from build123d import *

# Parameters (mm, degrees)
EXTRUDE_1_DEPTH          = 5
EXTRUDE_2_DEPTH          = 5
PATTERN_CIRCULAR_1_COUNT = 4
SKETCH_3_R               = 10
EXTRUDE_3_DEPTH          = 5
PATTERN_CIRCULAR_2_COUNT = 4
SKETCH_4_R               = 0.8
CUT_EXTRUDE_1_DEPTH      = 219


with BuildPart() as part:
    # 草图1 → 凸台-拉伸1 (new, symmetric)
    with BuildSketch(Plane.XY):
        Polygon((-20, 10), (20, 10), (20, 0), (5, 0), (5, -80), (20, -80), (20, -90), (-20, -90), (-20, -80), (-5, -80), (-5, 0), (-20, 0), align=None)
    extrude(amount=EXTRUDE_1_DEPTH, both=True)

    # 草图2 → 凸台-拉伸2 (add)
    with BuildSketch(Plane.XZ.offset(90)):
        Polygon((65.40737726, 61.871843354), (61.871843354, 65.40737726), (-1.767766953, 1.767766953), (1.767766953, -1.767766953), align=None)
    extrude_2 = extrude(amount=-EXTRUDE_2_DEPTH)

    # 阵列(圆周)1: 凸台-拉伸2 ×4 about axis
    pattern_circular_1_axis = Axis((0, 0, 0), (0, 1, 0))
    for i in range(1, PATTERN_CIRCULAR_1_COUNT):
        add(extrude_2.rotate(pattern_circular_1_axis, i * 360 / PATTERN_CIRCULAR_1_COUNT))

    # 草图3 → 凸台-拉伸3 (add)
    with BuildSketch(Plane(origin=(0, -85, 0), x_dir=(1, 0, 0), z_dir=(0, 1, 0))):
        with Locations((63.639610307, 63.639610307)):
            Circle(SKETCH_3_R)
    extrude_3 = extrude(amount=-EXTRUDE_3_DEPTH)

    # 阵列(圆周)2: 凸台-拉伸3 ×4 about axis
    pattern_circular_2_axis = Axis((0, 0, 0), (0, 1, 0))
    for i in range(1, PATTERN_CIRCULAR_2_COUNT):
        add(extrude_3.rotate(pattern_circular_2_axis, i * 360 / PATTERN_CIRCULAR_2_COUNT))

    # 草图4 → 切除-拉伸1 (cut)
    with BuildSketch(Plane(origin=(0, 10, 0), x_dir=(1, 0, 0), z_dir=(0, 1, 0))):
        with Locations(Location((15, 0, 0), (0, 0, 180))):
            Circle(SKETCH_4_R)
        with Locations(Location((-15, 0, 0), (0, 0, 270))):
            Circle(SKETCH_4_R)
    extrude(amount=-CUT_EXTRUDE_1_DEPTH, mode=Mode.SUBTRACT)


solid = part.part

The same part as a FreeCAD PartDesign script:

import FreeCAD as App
import Part
import Sketcher
Q = App.Units.Quantity


def add_polygon(sketch, points):
    """Adds a closed chain of lines whose ends are joined by coincident constraints."""
    first, n = sketch.GeometryCount, len(points)
    for a, b in zip(points, points[1:] + points[:1]):
        sketch.addGeometry(Part.LineSegment(App.Vector(*a, 0), App.Vector(*b, 0)), False)
    for i in range(n):
        sketch.addConstraint(Sketcher.Constraint("Coincident", first + i, 2, first + (i + 1) % n, 1))

doc = App.newDocument("Part")
body = doc.addObject("PartDesign::Body", "Body")

# Sketch on XY plane
sketch1 = body.newObject("Sketcher::SketchObject", "Sketch")
sketch1.AttachmentSupport = (doc.getObject("XY_Plane"), [""])
sketch1.MapMode = "FlatFace"
add_polygon(sketch1, [(20, 10), (-20, 10), (-20, 0), (-5, 0), (-5, -80), (-20, -80), (-20, -90), (20, -90), (20, -80), (5, -80), (5, 0), (20, 0)])  # lines 0-11
sketch1.addConstraint(Sketcher.Constraint("Horizontal", 0))
sketch1.addConstraint(Sketcher.Constraint("Vertical", 1))
sketch1.addConstraint(Sketcher.Constraint("Horizontal", 2))
sketch1.addConstraint(Sketcher.Constraint("Vertical", 3))
sketch1.addConstraint(Sketcher.Constraint("Horizontal", 4))
sketch1.addConstraint(Sketcher.Constraint("Vertical", 5))
sketch1.addConstraint(Sketcher.Constraint("Horizontal", 6))
sketch1.addConstraint(Sketcher.Constraint("Vertical", 7))
sketch1.addConstraint(Sketcher.Constraint("Horizontal", 8))
sketch1.addConstraint(Sketcher.Constraint("Vertical", 9))
sketch1.addConstraint(Sketcher.Constraint("Horizontal", 10))
sketch1.addConstraint(Sketcher.Constraint("Vertical", 11))
sketch1.addConstraint(Sketcher.Constraint("Symmetric", 2, 2, 9, 2, -1, 1))
sketch1.addConstraint(Sketcher.Constraint("Symmetric", 4, 2, 7, 2, -2))
sketch1.addConstraint(Sketcher.Constraint("Symmetric", 1, 2, 10, 2, -2))
sketch1.addConstraint(Sketcher.Constraint("Vertical", 1, 2, 4, 2))
sketch1.addConstraint(Sketcher.Constraint("Equal", 1, 5))
sketch1.addConstraint(Sketcher.Constraint("DistanceX", 0, 2, 0, 1, 40.0))
sketch1.addConstraint(Sketcher.Constraint("DistanceX", 2, 1, 2, 2, 15.0))
sketch1.addConstraint(Sketcher.Constraint("DistanceY", 1, 2, 1, 1, 10.0))
sketch1.addConstraint(Sketcher.Constraint("DistanceY", 3, 2, 3, 1, 80.0))
pad1 = body.newObject("PartDesign::Pad", "Pad")
pad1.Profile = sketch1
pad1.Length = 10
pad1.Midplane = True

# Sketch on XZ plane
sketch2 = body.newObject("Sketcher::SketchObject", "Sketch001")
sketch2.AttachmentSupport = (doc.getObject("XZ_Plane"), [""])
sketch2.MapMode = "FlatFace"
sketch2.AttachmentOffset = App.Placement(App.Vector(0, 0, 90), App.Rotation())
add_polygon(sketch2, [(65.407377, 61.871843), (61.871843, 65.407377), (-1.767767, 1.767767), (1.767767, -1.767767)])  # lines 0-3
sketch2.addConstraint(Sketcher.Constraint("Symmetric", 1, 2, 2, 2, -1, 1))
sketch2.addConstraint(Sketcher.Constraint("Perpendicular", 0, 1))
sketch2.addConstraint(Sketcher.Constraint("Perpendicular", 1, 2))
sketch2.addConstraint(Sketcher.Constraint("Perpendicular", 2, 3))
sketch2.addConstraint(Sketcher.Constraint("Angle", 0, Q("135 deg")))
sketch2.addConstraint(Sketcher.Constraint("Distance", 0, 5.0))
sketch2.addConstraint(Sketcher.Constraint("Distance", 1, 90.0))
pad2 = body.newObject("PartDesign::Pad", "Pad001")
pad2.Profile = sketch2
pad2.Length = 5
pad2.Reversed = True
doc.recompute()

polarpattern = body.newObject("PartDesign::PolarPattern", "PolarPattern")
polarpattern.Originals = [pad2]
polarpattern.Axis = (doc.getObject("Y_Axis"), [""])
polarpattern.Angle = 360
polarpattern.Occurrences = 4
body.Tip = polarpattern

# Sketch on XZ plane
sketch3 = body.newObject("Sketcher::SketchObject", "Sketch002")
sketch3.AttachmentSupport = (doc.getObject("XZ_Plane"), [""])
sketch3.MapMode = "FlatFace"
sketch3.AttachmentOffset = App.Placement(App.Vector(0, 0, 85), App.Rotation())
sketch3.addGeometry(Part.Circle(App.Vector(63.63961, -63.63961, 0), App.Vector(0, 0, 1), 10), False)
sketch3.addConstraint(Sketcher.Constraint("Diameter", 0, 20.0))
sketch3.addConstraint(Sketcher.Constraint("DistanceX", -1, 1, 0, 3, 63.63961))
sketch3.addConstraint(Sketcher.Constraint("DistanceY", 0, 3, -1, 1, 63.63961))
pad3 = body.newObject("PartDesign::Pad", "Pad002")
pad3.Profile = sketch3
pad3.Length = 5
doc.recompute()

polarpattern2 = body.newObject("PartDesign::PolarPattern", "PolarPattern001")
polarpattern2.Originals = [pad3]
polarpattern2.Axis = (doc.getObject("Y_Axis"), [""])
polarpattern2.Angle = 360
polarpattern2.Occurrences = 4
body.Tip = polarpattern2

# Sketch on XZ plane
sketch4 = body.newObject("Sketcher::SketchObject", "Sketch003")
sketch4.AttachmentSupport = (doc.getObject("XZ_Plane"), [""])
sketch4.MapMode = "FlatFace"
sketch4.AttachmentOffset = App.Placement(App.Vector(0, 0, -10), App.Rotation())
sketch4.addGeometry(Part.Circle(App.Vector(15, 0, 0), App.Vector(0, 0, 1), 0.8), False)
sketch4.addGeometry(Part.Circle(App.Vector(-15, 0, 0), App.Vector(0, 0, 1), 0.8), False)
sketch4.addConstraint(Sketcher.Constraint("Equal", 0, 1))
sketch4.addConstraint(Sketcher.Constraint("Symmetric", 0, 3, 1, 3, -1, 1))
sketch4.addConstraint(Sketcher.Constraint("PointOnObject", 0, 3, -1))
sketch4.addConstraint(Sketcher.Constraint("Diameter", 0, 1.6))
sketch4.addConstraint(Sketcher.Constraint("DistanceX", -1, 1, 0, 3, 15.0))
pocket1 = body.newObject("PartDesign::Pocket", "Pocket")
pocket1.Profile = sketch4
pocket1.Length = 219
pocket1.Reversed = True

doc.recompute()
